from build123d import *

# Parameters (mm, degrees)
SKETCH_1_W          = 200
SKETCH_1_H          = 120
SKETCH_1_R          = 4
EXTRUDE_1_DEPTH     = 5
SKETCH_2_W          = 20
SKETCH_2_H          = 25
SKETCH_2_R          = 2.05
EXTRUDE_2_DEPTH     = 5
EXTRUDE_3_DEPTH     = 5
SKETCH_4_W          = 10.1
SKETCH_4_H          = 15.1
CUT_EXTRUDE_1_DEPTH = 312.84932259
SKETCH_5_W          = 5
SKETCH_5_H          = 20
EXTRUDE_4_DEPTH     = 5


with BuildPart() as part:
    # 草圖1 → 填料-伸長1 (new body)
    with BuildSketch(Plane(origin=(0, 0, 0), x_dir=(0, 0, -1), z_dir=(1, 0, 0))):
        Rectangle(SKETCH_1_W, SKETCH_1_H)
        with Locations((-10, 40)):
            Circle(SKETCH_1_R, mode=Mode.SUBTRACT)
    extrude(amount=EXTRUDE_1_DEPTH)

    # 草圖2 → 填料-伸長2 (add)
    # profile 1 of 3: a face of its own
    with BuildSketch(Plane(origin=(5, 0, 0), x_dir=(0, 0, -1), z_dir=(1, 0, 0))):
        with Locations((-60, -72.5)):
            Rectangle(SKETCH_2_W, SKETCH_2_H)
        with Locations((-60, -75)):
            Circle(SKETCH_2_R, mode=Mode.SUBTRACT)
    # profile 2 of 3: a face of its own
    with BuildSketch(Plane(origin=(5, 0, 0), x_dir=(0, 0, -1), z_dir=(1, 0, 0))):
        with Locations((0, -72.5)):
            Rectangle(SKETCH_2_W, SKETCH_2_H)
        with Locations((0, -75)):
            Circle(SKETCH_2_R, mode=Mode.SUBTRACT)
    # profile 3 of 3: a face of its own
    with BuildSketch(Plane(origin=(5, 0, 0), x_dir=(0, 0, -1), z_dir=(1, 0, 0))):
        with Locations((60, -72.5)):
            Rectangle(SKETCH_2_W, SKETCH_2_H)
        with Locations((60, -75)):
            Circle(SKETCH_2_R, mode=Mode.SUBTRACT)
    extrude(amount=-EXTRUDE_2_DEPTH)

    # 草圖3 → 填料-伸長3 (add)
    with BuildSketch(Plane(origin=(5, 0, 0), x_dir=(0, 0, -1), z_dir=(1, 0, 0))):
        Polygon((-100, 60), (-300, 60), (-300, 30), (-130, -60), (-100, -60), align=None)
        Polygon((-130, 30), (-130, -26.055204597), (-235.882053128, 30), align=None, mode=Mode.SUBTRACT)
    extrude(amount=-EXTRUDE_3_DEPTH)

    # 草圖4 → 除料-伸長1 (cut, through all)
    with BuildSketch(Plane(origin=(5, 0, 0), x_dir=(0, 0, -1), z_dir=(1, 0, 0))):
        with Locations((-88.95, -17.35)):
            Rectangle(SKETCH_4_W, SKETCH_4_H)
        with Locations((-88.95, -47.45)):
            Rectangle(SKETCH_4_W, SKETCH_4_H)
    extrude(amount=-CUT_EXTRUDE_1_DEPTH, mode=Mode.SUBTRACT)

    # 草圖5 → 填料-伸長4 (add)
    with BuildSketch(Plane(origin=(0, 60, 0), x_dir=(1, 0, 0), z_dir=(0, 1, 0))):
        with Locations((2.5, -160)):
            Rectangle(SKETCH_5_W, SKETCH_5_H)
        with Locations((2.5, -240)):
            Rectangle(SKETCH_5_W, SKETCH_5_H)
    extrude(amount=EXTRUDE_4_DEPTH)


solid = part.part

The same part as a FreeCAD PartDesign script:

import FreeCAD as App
import Part
import Sketcher
from FreeCAD import Vector

doc = App.newDocument("Part")
body = doc.addObject("PartDesign::Body", "Body")

# Sketch on YZ plane
sketch1 = body.newObject("Sketcher::SketchObject", "Sketch")
sketch1.AttachmentSupport = (doc.getObject("YZ_Plane"), [""])
sketch1.MapMode = "FlatFace"
sketch1.addGeometry([
    Part.LineSegment(Vector(60, 100, 0), Vector(-60, 100, 0)),  # 0
    Part.LineSegment(Vector(-60, 100, 0), Vector(-60, -100, 0)),  # 1
    Part.LineSegment(Vector(-60, -100, 0), Vector(60, -100, 0)),  # 2
    Part.LineSegment(Vector(60, -100, 0), Vector(60, 100, 0)),  # 3
    Part.Circle(Vector(40, 10, 0), Vector(0, 0, 1), 4),  # 4
], False)
sketch1.addConstraint([
    Sketcher.Constraint("Coincident", 0, 2, 1, 1),
    Sketcher.Constraint("Coincident", 1, 2, 2, 1),
    Sketcher.Constraint("Coincident", 2, 2, 3, 1),
    Sketcher.Constraint("Coincident", 3, 2, 0, 1),
    Sketcher.Constraint("Horizontal", 0),
    Sketcher.Constraint("Vertical", 1),
    Sketcher.Constraint("Horizontal", 2),
    Sketcher.Constraint("Vertical", 3),
    Sketcher.Constraint("Symmetric", 0, 2, 2, 2, -1, 1),
    Sketcher.Constraint("Diameter", 4, 8.0),
    Sketcher.Constraint("DistanceX", 0, 2, 0, 1, 120.0),
    Sketcher.Constraint("DistanceY", 1, 2, 1, 1, 200.0),
    Sketcher.Constraint("DistanceX", -1, 1, 4, 3, 40.0),
    Sketcher.Constraint("DistanceY", -1, 1, 4, 3, 10.0),
])
pad1 = body.newObject("PartDesign::Pad", "Pad")
pad1.Profile = sketch1
pad1.Length = 5

# Sketch on YZ plane
sketch2 = body.newObject("Sketcher::SketchObject", "Sketch001")
sketch2.AttachmentSupport = (doc.getObject("YZ_Plane"), [""])
sketch2.MapMode = "FlatFace"
sketch2.AttachmentOffset = App.Placement(Vector(0, 0, 5), App.Rotation())
sketch2.addGeometry([
    Part.LineSegment(Vector(-60, 70, 0), Vector(-85, 70, 0)),  # 0
    Part.LineSegment(Vector(-85, 70, 0), Vector(-85, 50, 0)),  # 1
    Part.LineSegment(Vector(-85, 50, 0), Vector(-60, 50, 0)),  # 2
    Part.LineSegment(Vector(-60, 50, 0), Vector(-60, 70, 0)),  # 3
    Part.Circle(Vector(-75, 60, 0), Vector(0, 0, 1), 2),  # 4
    Part.LineSegment(Vector(-60, 10, 0), Vector(-85, 10, 0)),  # 5
    Part.LineSegment(Vector(-85, 10, 0), Vector(-85, -10, 0)),  # 6
    Part.LineSegment(Vector(-85, -10, 0), Vector(-60, -10, 0)),  # 7
    Part.LineSegment(Vector(-60, -10, 0), Vector(-60, 10, 0)),  # 8
    Part.Circle(Vector(-75, 0, 0), Vector(0, 0, 1), 2),  # 9
    Part.LineSegment(Vector(-60, -50, 0), Vector(-85, -50, 0)),  # 10
    Part.LineSegment(Vector(-85, -50, 0), Vector(-85, -70, 0)),  # 11
    Part.LineSegment(Vector(-85, -70, 0), Vector(-60, -70, 0)),  # 12
    Part.LineSegment(Vector(-60, -70, 0), Vector(-60, -50, 0)),  # 13
    Part.Circle(Vector(-75, -60, 0), Vector(0, 0, 1), 2),  # 14
], False)
sketch2.addConstraint([
    Sketcher.Constraint("Coincident", 0, 2, 1, 1),
    Sketcher.Constraint("Coincident", 1, 2, 2, 1),
    Sketcher.Constraint("Coincident", 2, 2, 3, 1),
    Sketcher.Constraint("Coincident", 3, 2, 0, 1),
    Sketcher.Constraint("Coincident", 5, 2, 6, 1),
    Sketcher.Constraint("Coincident", 6, 2, 7, 1),
    Sketcher.Constraint("Coincident", 7, 2, 8, 1),
    Sketcher.Constraint("Coincident", 8, 2, 5, 1),
    Sketcher.Constraint("Coincident", 10, 2, 11, 1),
    Sketcher.Constraint("Coincident", 11, 2, 12, 1),
    Sketcher.Constraint("Coincident", 12, 2, 13, 1),
    Sketcher.Constraint("Coincident", 13, 2, 10, 1),
    Sketcher.Constraint("Horizontal", 0),
    Sketcher.Constraint("Vertical", 1),
    Sketcher.Constraint("Horizontal", 2),
    Sketcher.Constraint("Vertical", 3),
    Sketcher.Constraint("Horizontal", 5),
    Sketcher.Constraint("Vertical", 6),
    Sketcher.Constraint("Horizontal", 7),
    Sketcher.Constraint("Vertical", 8),
    Sketcher.Constraint("Horizontal", 10),
    Sketcher.Constraint("Vertical", 11),
    Sketcher.Constraint("Horizontal", 12),
    Sketcher.Constraint("Vertical", 13),
    Sketcher.Constraint("Equal", 4, 9),
    Sketcher.Constraint("Equal", 9, 14),
    Sketcher.Constraint("Symmetric", 4, 3, 14, 3, -1),
    Sketcher.Constraint("Symmetric", 1, 2, 10, 2, -1),
    Sketcher.Constraint("Symmetric", 3, 2, 12, 2, -1),
    Sketcher.Constraint("PointOnObject", 9, 3, -1),
    Sketcher.Constraint("Vertical", 4, 3, 9, 3),
    Sketcher.Constraint("Vertical", 1, 2, 5, 2),
    Sketcher.Constraint("Vertical", 3, 2, 7, 2),
    Sketcher.Constraint("Equal", 3, 6),
    Sketcher.Constraint("Diameter", 4, 4.1),
    Sketcher.Constraint("DistanceX", 0, 2, 0, 1, 25.0),
    Sketcher.Constraint("DistanceY", 1, 2, 1, 1, 20.0),
    Sketcher.Constraint("DistanceX", 4, 3, -1, 1, 75.0),
    Sketcher.Constraint("DistanceY", -1, 1, 4, 3, 60.0),
    Sketcher.Constraint("DistanceX", 0, 2, -1, 1, 85.0),
    Sketcher.Constraint("DistanceY", -1, 1, 0, 2, 70.0),
    Sketcher.Constraint("DistanceY", -1, 1, 5, 2, 10.0),
])
pad2 = body.newObject("PartDesign::Pad", "Pad001")
pad2.Profile = sketch2
pad2.Length = 5
pad2.Reversed = True

# Sketch on YZ plane
sketch3 = body.newObject("Sketcher::SketchObject", "Sketch002")
sketch3.AttachmentSupport = (doc.getObject("YZ_Plane"), [""])
sketch3.MapMode = "FlatFace"
sketch3.AttachmentOffset = App.Placement(Vector(0, 0, 5), App.Rotation())
sketch3.addGeometry([
    Part.LineSegment(Vector(60, 100, 0), Vector(60, 300, 0)),  # 0
    Part.LineSegment(Vector(60, 300, 0), Vector(30, 300, 0)),  # 1
    Part.LineSegment(Vector(30, 300, 0), Vector(-60, 130, 0)),  # 2
    Part.LineSegment(Vector(-60, 130, 0), Vector(-60, 100, 0)),  # 3
    Part.LineSegment(Vector(-60, 100, 0), Vector(60, 100, 0)),  # 4
    Part.LineSegment(Vector(30, 236, 0), Vector(30, 130, 0)),  # 5
    Part.LineSegment(Vector(30, 130, 0), Vector(-26, 130, 0)),  # 6
    Part.LineSegment(Vector(-26, 130, 0), Vector(30, 236, 0)),  # 7
], False)
sketch3.addConstraint([
    Sketcher.Constraint("Coincident", 0, 2, 1, 1),
    Sketcher.Constraint("Coincident", 1, 2, 2, 1),
    Sketcher.Constraint("Coincident", 2, 2, 3, 1),
    Sketcher.Constraint("Coincident", 3, 2, 4, 1),
    Sketcher.Constraint("Coincident", 4, 2, 0, 1),
    Sketcher.Constraint("Coincident", 5, 2, 6, 1),
    Sketcher.Constraint("Coincident", 6, 2, 7, 1),
    Sketcher.Constraint("Coincident", 7, 2, 5, 1),
    Sketcher.Constraint("Vertical", 0),
    Sketcher.Constraint("Horizontal", 1),
    Sketcher.Constraint("Vertical", 3),
    Sketcher.Constraint("Horizontal", 4),
    Sketcher.Constraint("Vertical", 5),
    Sketcher.Constraint("Horizontal", 6),
    Sketcher.Constraint("Parallel", 2, 7),
    Sketcher.Constraint("Horizontal", 2, 2, 5, 2),
    Sketcher.Constraint("Vertical", 1, 2, 5, 2),
    Sketcher.Constraint("Equal", 1, 3),
    Sketcher.Constraint("DistanceX", 1, 2, 1, 1, 30.0),
    Sketcher.Constraint("DistanceX", 4, 1, 4, 2, 120.0),
    Sketcher.Constraint("DistanceY", 0, 1, 0, 2, 200.0),
    Sketcher.Constraint("DistanceX", -1, 1, 0, 2, 60.0),
    Sketcher.Constraint("DistanceY", -1, 1, 0, 2, 300.0),
    Sketcher.Constraint("Distance", 7, 119.804821),
])
pad3 = body.newObject("PartDesign::Pad", "Pad002")
pad3.Profile = sketch3
pad3.Length = 5
pad3.Reversed = True

# Sketch on YZ plane
sketch4 = body.newObject("Sketcher::SketchObject", "Sketch003")
sketch4.AttachmentSupport = (doc.getObject("YZ_Plane"), [""])
sketch4.MapMode = "FlatFace"
sketch4.AttachmentOffset = App.Placement(Vector(0, 0, 5), App.Rotation())
sketch4.addGeometry([
    Part.LineSegment(Vector(-10, 94, 0), Vector(-25, 94, 0)),  # 0
    Part.LineSegment(Vector(-25, 94, 0), Vector(-25, 84, 0)),  # 1
    Part.LineSegment(Vector(-25, 84, 0), Vector(-10, 84, 0)),  # 2
    Part.LineSegment(Vector(-10, 84, 0), Vector(-10, 94, 0)),  # 3
    Part.LineSegment(Vector(-40, 94, 0), Vector(-55, 94, 0)),  # 4
    Part.LineSegment(Vector(-55, 94, 0), Vector(-55, 84, 0)),  # 5
    Part.LineSegment(Vector(-55, 84, 0), Vector(-40, 84, 0)),  # 6
    Part.LineSegment(Vector(-40, 84, 0), Vector(-40, 94, 0)),  # 7
], False)
sketch4.addConstraint([
    Sketcher.Constraint("Coincident", 0, 2, 1, 1),
    Sketcher.Constraint("Coincident", 1, 2, 2, 1),
    Sketcher.Constraint("Coincident", 2, 2, 3, 1),
    Sketcher.Constraint("Coincident", 3, 2, 0, 1),
    Sketcher.Constraint("Coincident", 4, 2, 5, 1),
    Sketcher.Constraint("Coincident", 5, 2, 6, 1),
    Sketcher.Constraint("Coincident", 6, 2, 7, 1),
    Sketcher.Constraint("Coincident", 7, 2, 4, 1),
    Sketcher.Constraint("Horizontal", 0),
    Sketcher.Constraint("Vertical", 1),
    Sketcher.Constraint("Horizontal", 2),
    Sketcher.Constraint("Vertical", 3),
    Sketcher.Constraint("Horizontal", 4),
    Sketcher.Constraint("Vertical", 5),
    Sketcher.Constraint("Horizontal", 6),
    Sketcher.Constraint("Vertical", 7),
    Sketcher.Constraint("Horizontal", 3, 2, 4, 2),
    Sketcher.Constraint("Horizontal", 2, 2, 5, 2),
    Sketcher.Constraint("Equal", 2, 4),
    Sketcher.Constraint("DistanceX", 0, 2, 0, 1, 15.1),
    Sketcher.Constraint("DistanceY", 1, 2, 1, 1, 10.1),
    Sketcher.Constraint("DistanceY", -1, 1, 0, 2, 94.0),
    Sketcher.Constraint("DistanceX", 4, 2, -1, 1, 55.0),
    Sketcher.Constraint("DistanceX", 6, 2, 1, 2, 15.0),
])
pocket1 = body.newObject("PartDesign::Pocket", "Pocket")
pocket1.Profile = sketch4
pocket1.Type = "ThroughAll"

# Sketch on XZ plane
sketch5 = body.newObject("Sketcher::SketchObject", "Sketch004")
sketch5.AttachmentSupport = (doc.getObject("XZ_Plane"), [""])
sketch5.MapMode = "FlatFace"
sketch5.AttachmentOffset = App.Placement(Vector(0, 0, -60), App.Rotation())
sketch5.addGeometry([
    Part.LineSegment(Vector(0, 150, 0), Vector(0, 170, 0)),  # 0
    Part.LineSegment(Vector(0, 170, 0), Vector(5, 170, 0)),  # 1
    Part.LineSegment(Vector(5, 170, 0), Vector(5, 150, 0)),  # 2
    Part.LineSegment(Vector(5, 150, 0), Vector(0, 150, 0)),  # 3
    Part.LineSegment(Vector(0, 230, 0), Vector(0, 250, 0)),  # 4
    Part.LineSegment(Vector(0, 250, 0), Vector(5, 250, 0)),  # 5
    Part.LineSegment(Vector(5, 250, 0), Vector(5, 230, 0)),  # 6
    Part.LineSegment(Vector(5, 230, 0), Vector(0, 230, 0)),  # 7
], False)
sketch5.addConstraint([
    Sketcher.Constraint("Coincident", 0, 2, 1, 1),
    Sketcher.Constraint("Coincident", 1, 2, 2, 1),
    Sketcher.Constraint("Coincident", 2, 2, 3, 1),
    Sketcher.Constraint("Coincident", 3, 2, 0, 1),
    Sketcher.Constraint("Coincident", 4, 2, 5, 1),
    Sketcher.Constraint("Coincident", 5, 2, 6, 1),
    Sketcher.Constraint("Coincident", 6, 2, 7, 1),
    Sketcher.Constraint("Coincident", 7, 2, 4, 1),
    Sketcher.Constraint("Vertical", 0),
    Sketcher.Constraint("Horizontal", 1),
    Sketcher.Constraint("Vertical", 2),
    Sketcher.Constraint("Horizontal", 3),
    Sketcher.Constraint("Vertical", 4),
    Sketcher.Constraint("Horizontal", 5),
    Sketcher.Constraint("Vertical", 6),
    Sketcher.Constraint("Horizontal", 7),
    Sketcher.Constraint("PointOnObject", 0, 2, -2),
    Sketcher.Constraint("PointOnObject", 4, 2, -2),
    Sketcher.Constraint("Vertical", 2, 2, 5, 2),
    Sketcher.Constraint("Equal", 2, 4),
    Sketcher.Constraint("DistanceX", 1, 1, 1, 2, 5.0),
    Sketcher.Constraint("DistanceY", 0, 1, 0, 2, 20.0),
    Sketcher.Constraint("DistanceY", -1, 1, 0, 2, 170.0),
    Sketcher.Constraint("DistanceY", -1, 1, 4, 2, 250.0),
])
pad4 = body.newObject("PartDesign::Pad", "Pad003")
pad4.Profile = sketch5
pad4.Length = 5
pad4.Reversed = True

doc.recompute()
